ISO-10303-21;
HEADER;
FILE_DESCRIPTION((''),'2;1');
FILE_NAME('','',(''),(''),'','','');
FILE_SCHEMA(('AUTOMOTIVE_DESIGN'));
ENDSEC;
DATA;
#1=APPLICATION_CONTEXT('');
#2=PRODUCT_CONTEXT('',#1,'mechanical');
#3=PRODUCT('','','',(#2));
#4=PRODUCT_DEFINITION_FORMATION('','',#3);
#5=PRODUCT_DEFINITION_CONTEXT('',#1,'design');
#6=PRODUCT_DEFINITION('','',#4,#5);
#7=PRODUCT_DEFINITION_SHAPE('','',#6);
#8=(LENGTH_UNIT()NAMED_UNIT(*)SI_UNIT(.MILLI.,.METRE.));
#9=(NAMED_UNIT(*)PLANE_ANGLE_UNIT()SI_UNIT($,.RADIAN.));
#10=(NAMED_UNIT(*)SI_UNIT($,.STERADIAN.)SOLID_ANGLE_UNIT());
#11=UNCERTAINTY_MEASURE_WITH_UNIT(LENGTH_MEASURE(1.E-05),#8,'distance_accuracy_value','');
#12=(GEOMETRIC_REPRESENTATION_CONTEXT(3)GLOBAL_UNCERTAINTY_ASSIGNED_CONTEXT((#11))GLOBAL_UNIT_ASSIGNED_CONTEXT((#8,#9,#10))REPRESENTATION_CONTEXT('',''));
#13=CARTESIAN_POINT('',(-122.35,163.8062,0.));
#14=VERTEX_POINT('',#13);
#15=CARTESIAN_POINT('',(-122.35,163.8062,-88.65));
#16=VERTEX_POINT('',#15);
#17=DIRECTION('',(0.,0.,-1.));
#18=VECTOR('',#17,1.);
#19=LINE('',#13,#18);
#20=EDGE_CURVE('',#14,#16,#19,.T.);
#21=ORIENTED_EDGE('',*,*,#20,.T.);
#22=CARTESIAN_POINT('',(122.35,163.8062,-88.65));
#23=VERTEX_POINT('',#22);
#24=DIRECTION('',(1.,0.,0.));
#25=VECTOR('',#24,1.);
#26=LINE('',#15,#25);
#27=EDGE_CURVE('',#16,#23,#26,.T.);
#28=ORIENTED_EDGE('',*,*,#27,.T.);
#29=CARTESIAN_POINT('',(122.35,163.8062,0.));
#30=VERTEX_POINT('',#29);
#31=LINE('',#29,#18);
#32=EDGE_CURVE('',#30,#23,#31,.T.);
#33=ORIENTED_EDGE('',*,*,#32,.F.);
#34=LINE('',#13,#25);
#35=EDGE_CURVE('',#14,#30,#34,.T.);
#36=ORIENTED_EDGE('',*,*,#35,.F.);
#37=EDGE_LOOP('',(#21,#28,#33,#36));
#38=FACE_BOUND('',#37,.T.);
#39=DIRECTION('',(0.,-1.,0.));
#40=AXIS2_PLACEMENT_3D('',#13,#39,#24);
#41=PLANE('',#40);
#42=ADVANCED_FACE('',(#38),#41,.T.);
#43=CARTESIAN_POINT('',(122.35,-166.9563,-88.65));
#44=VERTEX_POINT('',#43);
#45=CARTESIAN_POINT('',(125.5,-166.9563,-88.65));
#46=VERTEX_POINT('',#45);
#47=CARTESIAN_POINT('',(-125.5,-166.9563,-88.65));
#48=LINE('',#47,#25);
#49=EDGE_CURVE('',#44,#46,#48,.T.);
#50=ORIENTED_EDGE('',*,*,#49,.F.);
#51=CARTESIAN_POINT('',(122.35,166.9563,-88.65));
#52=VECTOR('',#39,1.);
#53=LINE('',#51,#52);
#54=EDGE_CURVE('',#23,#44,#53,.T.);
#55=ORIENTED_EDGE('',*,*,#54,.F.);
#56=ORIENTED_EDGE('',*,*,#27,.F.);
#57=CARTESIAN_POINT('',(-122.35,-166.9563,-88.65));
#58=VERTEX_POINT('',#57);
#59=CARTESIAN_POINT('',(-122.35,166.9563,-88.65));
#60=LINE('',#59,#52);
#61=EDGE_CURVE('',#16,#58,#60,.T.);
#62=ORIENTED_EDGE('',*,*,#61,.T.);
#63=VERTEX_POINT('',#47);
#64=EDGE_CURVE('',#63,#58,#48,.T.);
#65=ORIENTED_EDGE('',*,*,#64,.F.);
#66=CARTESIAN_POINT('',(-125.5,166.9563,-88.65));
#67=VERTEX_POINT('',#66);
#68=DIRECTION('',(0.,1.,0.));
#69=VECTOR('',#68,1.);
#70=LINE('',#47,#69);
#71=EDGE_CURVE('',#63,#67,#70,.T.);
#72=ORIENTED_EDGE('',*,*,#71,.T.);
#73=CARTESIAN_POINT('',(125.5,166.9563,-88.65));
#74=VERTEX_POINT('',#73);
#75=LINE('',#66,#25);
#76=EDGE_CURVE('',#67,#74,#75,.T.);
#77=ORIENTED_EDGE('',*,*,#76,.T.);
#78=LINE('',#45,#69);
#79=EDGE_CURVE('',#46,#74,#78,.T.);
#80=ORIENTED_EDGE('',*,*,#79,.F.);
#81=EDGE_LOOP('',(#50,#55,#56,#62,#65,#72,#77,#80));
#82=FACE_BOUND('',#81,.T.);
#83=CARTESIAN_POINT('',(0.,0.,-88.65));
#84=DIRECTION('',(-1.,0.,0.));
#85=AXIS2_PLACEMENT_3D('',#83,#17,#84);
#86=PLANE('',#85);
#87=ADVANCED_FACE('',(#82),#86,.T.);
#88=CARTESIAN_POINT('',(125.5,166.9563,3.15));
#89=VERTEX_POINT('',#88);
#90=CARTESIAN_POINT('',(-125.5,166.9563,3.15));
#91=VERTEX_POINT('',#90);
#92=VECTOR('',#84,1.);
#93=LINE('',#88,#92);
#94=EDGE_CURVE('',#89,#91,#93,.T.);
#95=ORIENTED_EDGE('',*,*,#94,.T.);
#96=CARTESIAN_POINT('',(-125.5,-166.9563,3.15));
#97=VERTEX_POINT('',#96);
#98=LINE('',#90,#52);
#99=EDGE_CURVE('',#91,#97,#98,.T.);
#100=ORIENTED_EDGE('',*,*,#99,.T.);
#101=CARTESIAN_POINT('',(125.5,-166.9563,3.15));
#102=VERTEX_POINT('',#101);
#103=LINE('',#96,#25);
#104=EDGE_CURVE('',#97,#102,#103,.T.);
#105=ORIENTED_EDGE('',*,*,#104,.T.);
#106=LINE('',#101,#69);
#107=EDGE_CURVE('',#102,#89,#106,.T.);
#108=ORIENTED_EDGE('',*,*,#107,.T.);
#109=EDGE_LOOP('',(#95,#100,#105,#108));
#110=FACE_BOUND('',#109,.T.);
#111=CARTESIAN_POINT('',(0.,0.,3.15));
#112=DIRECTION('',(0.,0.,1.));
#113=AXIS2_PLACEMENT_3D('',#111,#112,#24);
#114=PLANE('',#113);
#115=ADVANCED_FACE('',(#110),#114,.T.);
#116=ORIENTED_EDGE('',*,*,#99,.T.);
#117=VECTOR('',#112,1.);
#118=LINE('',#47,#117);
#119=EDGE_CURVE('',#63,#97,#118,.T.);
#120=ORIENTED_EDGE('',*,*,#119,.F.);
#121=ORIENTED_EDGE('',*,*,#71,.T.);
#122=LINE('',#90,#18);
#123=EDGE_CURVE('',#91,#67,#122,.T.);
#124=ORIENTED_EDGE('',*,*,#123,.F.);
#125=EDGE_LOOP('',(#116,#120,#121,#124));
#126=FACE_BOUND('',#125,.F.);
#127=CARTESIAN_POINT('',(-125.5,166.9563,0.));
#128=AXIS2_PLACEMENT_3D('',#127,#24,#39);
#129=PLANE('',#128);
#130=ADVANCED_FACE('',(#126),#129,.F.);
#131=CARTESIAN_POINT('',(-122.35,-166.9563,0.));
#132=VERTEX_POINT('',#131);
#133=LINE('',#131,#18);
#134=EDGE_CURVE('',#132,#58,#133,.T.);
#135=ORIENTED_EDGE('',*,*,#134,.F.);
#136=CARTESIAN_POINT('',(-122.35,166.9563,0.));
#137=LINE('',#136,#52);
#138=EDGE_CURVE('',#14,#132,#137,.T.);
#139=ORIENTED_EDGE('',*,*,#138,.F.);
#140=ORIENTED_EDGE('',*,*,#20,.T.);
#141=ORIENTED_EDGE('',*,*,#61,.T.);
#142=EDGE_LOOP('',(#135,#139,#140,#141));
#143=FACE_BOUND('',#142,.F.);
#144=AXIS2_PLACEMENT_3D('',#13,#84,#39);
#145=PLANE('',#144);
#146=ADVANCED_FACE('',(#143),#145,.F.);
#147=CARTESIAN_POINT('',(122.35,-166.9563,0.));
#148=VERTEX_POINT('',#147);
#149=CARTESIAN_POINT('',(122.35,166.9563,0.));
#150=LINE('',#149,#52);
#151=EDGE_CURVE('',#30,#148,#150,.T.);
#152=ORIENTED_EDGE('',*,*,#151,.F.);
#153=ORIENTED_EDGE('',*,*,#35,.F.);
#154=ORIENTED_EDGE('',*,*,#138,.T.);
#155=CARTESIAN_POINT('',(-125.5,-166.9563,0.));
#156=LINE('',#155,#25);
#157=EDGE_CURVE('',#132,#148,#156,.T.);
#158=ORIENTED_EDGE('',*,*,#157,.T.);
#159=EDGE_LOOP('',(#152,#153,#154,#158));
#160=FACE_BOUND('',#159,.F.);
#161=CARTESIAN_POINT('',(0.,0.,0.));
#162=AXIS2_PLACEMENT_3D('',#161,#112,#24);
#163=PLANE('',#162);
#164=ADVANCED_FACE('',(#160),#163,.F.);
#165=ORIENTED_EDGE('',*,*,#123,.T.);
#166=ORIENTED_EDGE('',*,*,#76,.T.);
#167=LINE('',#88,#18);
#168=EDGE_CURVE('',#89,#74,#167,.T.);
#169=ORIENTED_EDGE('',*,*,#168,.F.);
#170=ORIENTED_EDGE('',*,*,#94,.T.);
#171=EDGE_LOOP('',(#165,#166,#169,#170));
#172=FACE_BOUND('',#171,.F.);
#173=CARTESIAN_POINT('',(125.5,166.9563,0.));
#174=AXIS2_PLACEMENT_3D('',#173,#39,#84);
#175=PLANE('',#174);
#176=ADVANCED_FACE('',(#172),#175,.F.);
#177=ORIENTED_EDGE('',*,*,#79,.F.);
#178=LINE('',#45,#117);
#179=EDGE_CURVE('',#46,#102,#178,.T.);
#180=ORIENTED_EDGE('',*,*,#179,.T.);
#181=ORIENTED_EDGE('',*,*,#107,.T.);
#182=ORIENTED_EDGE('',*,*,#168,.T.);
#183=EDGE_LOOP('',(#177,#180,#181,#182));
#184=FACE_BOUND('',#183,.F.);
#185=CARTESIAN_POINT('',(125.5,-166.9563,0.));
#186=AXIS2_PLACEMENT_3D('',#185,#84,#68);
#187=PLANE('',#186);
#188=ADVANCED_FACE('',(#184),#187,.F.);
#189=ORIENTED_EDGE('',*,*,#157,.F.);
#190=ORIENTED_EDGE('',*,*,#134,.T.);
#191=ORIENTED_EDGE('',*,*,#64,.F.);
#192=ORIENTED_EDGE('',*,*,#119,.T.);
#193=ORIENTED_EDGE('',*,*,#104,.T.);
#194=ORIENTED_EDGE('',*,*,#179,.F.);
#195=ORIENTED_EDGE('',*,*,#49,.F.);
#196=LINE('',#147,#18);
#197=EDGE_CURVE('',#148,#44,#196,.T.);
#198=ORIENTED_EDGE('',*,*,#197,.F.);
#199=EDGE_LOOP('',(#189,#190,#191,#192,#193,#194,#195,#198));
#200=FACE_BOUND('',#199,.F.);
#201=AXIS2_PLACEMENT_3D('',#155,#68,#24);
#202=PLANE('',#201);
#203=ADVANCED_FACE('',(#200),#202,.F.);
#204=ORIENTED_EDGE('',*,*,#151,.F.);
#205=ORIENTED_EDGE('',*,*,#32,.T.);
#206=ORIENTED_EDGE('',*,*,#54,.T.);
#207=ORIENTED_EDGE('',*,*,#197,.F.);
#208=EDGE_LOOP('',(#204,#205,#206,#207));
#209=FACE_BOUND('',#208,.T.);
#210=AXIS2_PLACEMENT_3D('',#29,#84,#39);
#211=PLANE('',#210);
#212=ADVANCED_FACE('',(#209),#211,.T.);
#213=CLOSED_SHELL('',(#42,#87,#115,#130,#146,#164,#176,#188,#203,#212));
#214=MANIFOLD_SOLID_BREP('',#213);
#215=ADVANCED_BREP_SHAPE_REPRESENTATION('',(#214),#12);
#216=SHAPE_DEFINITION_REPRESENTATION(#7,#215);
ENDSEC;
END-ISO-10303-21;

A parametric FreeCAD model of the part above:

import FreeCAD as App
import Part
import Sketcher
Q = App.Units.Quantity


def add_polygon(sketch, points):
    """Adds a closed chain of lines whose ends are joined by coincident constraints."""
    first, n = sketch.GeometryCount, len(points)
    for a, b in zip(points, points[1:] + points[:1]):
        sketch.addGeometry(Part.LineSegment(App.Vector(*a, 0), App.Vector(*b, 0)), False)
    for i in range(n):
        sketch.addConstraint(Sketcher.Constraint("Coincident", first + i, 2, first + (i + 1) % n, 1))

doc = App.newDocument("Part")
body = doc.addObject("PartDesign::Body", "Body")

# Sketch on XY plane
sketch1 = doc.addObject("Sketcher::SketchObject", "Sketch")
body.addObject(sketch1)
sketch1.AttachmentSupport = (doc.XY_Plane, [""])
sketch1.MapMode = "FlatFace"
add_polygon(sketch1, [(-126, 167), (-126, -167), (126, -167), (126, 167)])  # lines 0-3
sketch1.addConstraint([
    Sketcher.Constraint("Vertical", 0),
    Sketcher.Constraint("Horizontal", 1),
    Sketcher.Constraint("Vertical", 2),
    Sketcher.Constraint("Horizontal", 3),
    Sketcher.Constraint("Symmetric", 0, 2, 2, 2, -1, 1),
    Sketcher.Constraint("DistanceX", 1, 1, 1, 2, Q("251 mm")),
    Sketcher.Constraint("DistanceY", 0, 2, 0, 1, Q("333.9126 mm")),
])
pad1 = doc.addObject("PartDesign::Pad", "Pad")
body.addObject(pad1)
pad1.Profile = sketch1
pad1.Length = 3.15

# Sketch on XY plane
sketch2 = doc.addObject("Sketcher::SketchObject", "Sketch001")
body.addObject(sketch2)
sketch2.AttachmentSupport = (doc.XY_Plane, [""])
sketch2.MapMode = "FlatFace"
add_polygon(sketch2, [(-122.3, -167), (-125.5, -167), (-125.5, 167), (125.5, 167), (125.5, -167), (122.3, -167), (122.3, 163.8), (-122.3, 163.8)])  # lines 0-7
sketch2.addConstraint([
    Sketcher.Constraint("Horizontal", 0),
    Sketcher.Constraint("Vertical", 1),
    Sketcher.Constraint("Horizontal", 2),
    Sketcher.Constraint("Vertical", 3),
    Sketcher.Constraint("Horizontal", 4),
    Sketcher.Constraint("Vertical", 5),
    Sketcher.Constraint("Horizontal", 6),
    Sketcher.Constraint("Vertical", 7),
    Sketcher.Constraint("Symmetric", 0, 2, 2, 2, -1, 1),
    Sketcher.Constraint("Symmetric", 4, 2, 7, 2, -2),
    Sketcher.Constraint("DistanceX", 0, 2, 0, 1, Q("3.15 mm")),
    Sketcher.Constraint("DistanceX", 2, 1, 2, 2, Q("251 mm")),
    Sketcher.Constraint("DistanceY", 5, 2, 2, 2, Q("3.15 mm")),
    Sketcher.Constraint("DistanceY", 1, 1, 1, 2, Q("333.9126 mm")),
])
pad2 = doc.addObject("PartDesign::Pad", "Pad001")
body.addObject(pad2)
pad2.Profile = sketch2
pad2.Length = 88.65
pad2.Reversed = True

doc.recompute()
